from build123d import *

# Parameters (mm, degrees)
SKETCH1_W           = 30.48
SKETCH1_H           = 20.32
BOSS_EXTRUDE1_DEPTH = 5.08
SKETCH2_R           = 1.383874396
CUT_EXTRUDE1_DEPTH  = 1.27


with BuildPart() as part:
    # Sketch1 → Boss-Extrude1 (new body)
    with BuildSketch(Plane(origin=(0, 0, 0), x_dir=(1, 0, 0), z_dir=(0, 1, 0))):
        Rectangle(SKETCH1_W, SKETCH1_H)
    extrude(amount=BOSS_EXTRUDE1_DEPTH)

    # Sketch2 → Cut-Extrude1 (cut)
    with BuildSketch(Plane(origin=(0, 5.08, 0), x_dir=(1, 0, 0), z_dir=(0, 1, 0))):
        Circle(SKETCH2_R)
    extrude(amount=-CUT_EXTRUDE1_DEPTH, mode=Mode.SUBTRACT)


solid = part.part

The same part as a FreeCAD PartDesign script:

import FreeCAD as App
import Part
import Sketcher

V = App.Vector
Q = App.Units.Quantity

doc = App.newDocument("Part")
body = doc.addObject("PartDesign::Body", "Body")

# Sketch on XZ plane
sketch1 = body.newObject("Sketcher::SketchObject", "Sketch")
sketch1.AttachmentSupport = (doc.getObject("XZ_Plane"), [""])
sketch1.MapMode = "FlatFace"
sketch1.addGeometry([
    Part.LineSegment(V(-15, -10, 0), V(-15, 10, 0)),
    Part.LineSegment(V(-15, 10, 0), V(15, 10, 0)),
    Part.LineSegment(V(15, 10, 0), V(15, -10, 0)),
    Part.LineSegment(V(15, -10, 0), V(-15, -10, 0)),
], False)
sketch1.addConstraint([
    Sketcher.Constraint("Coincident", 0, 2, 1, 1),
    Sketcher.Constraint("Coincident", 1, 2, 2, 1),
    Sketcher.Constraint("Coincident", 2, 2, 3, 1),
    Sketcher.Constraint("Coincident", 3, 2, 0, 1),
    Sketcher.Constraint("Vertical", 0),
    Sketcher.Constraint("Horizontal", 1),
    Sketcher.Constraint("Vertical", 2),
    Sketcher.Constraint("Horizontal", 3),
    Sketcher.Constraint("Symmetric", 0, 2, 2, 2, -1, 1),
    Sketcher.Constraint("DistanceX", 1, 1, 1, 2, Q("1.2 in")),
    Sketcher.Constraint("DistanceY", 0, 1, 0, 2, Q("0.8 in")),
])
pad1 = body.newObject("PartDesign::Pad", "Pad")
pad1.Profile = sketch1
pad1.Length = Q("0.2 in")
pad1.Reversed = True

# Sketch on XZ plane
sketch2 = body.newObject("Sketcher::SketchObject", "Sketch001")
sketch2.AttachmentSupport = (doc.getObject("XZ_Plane"), [""])
sketch2.MapMode = "FlatFace"
sketch2.AttachmentOffset = App.Placement(V(0, 0, -0.2 * 25.4), App.Rotation())
sketch2.addGeometry(Part.Circle(V(0, 0, 0), V(0, 0, 1), 1.4), False)
sketch2.addConstraint([
    Sketcher.Constraint("Coincident", 0, 3, -1, 1),
    Sketcher.Constraint("Diameter", 0, 2.767749),
])
pocket1 = body.newObject("PartDesign::Pocket", "Pocket")
pocket1.Profile = sketch2
pocket1.Length = Q("0.05 in")
pocket1.Reversed = True

doc.recompute()
